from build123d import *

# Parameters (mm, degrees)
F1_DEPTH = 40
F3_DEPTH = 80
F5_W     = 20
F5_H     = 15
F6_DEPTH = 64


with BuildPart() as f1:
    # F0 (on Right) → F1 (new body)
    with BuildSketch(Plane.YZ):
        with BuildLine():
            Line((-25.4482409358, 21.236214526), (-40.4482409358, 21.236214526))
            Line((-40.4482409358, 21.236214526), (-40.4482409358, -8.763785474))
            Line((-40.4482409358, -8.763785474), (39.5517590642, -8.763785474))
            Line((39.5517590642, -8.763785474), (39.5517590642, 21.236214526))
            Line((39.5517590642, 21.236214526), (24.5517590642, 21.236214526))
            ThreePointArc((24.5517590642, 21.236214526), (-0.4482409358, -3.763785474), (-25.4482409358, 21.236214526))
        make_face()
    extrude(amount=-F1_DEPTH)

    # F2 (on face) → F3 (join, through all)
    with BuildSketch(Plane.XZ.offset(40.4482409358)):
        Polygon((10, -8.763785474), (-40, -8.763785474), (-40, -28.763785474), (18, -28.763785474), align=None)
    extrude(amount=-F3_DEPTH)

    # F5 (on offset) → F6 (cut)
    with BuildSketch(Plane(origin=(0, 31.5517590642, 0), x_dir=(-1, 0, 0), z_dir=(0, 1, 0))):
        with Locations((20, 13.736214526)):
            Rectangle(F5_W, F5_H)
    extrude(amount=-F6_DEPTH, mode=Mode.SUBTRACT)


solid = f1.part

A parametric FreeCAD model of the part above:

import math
import FreeCAD as App
import Part
import Sketcher


def add_polygon(sketch, points):
    """Adds a closed chain of lines whose ends are joined by coincident constraints."""
    first, n = sketch.GeometryCount, len(points)
    for a, b in zip(points, points[1:] + points[:1]):
        sketch.addGeometry(Part.LineSegment(App.Vector(*a, 0), App.Vector(*b, 0)), False)
    for i in range(n):
        sketch.addConstraint(Sketcher.Constraint("Coincident", first + i, 2, first + (i + 1) % n, 1))

doc = App.newDocument("Part")
body = doc.addObject("PartDesign::Body", "Body")

# Sketch on YZ plane
sketch1 = doc.addObject("Sketcher::SketchObject", "Sketch")
body.addObject(sketch1)
sketch1.AttachmentSupport = (doc.YZ_Plane, [""])
sketch1.MapMode = "FlatFace"
sketch1.addGeometry(Part.LineSegment(App.Vector(-25.448241, 21.236215, 0), App.Vector(-40.448241, 21.236215, 0)), False)
sketch1.addGeometry(Part.LineSegment(App.Vector(-40.448241, 21.236215, 0), App.Vector(-40.448241, -8.763785, 0)), False)
sketch1.addGeometry(Part.LineSegment(App.Vector(-40.448241, -8.763785, 0), App.Vector(39.551759, -8.763785, 0)), False)
sketch1.addGeometry(Part.LineSegment(App.Vector(39.551759, -8.763785, 0), App.Vector(39.551759, 21.236215, 0)), False)
sketch1.addGeometry(Part.LineSegment(App.Vector(39.551759, 21.236215, 0), App.Vector(24.551759, 21.236215, 0)), False)
sketch1.addGeometry(Part.ArcOfCircle(Part.Circle(App.Vector(-0.448241, 21.236215, 0), App.Vector(0, 0, 1), 25), math.radians(180), math.radians(360)), False)
sketch1.addConstraint(Sketcher.Constraint("Coincident", 0, 2, 1, 1))
sketch1.addConstraint(Sketcher.Constraint("Coincident", 1, 2, 2, 1))
sketch1.addConstraint(Sketcher.Constraint("Coincident", 2, 2, 3, 1))
sketch1.addConstraint(Sketcher.Constraint("Coincident", 3, 2, 4, 1))
sketch1.addConstraint(Sketcher.Constraint("Coincident", 4, 2, 5, 2))
sketch1.addConstraint(Sketcher.Constraint("Coincident", 5, 1, 0, 1))
sketch1.addConstraint(Sketcher.Constraint("Horizontal", 0))
sketch1.addConstraint(Sketcher.Constraint("Vertical", 1))
sketch1.addConstraint(Sketcher.Constraint("Horizontal", 2))
sketch1.addConstraint(Sketcher.Constraint("Vertical", 3))
sketch1.addConstraint(Sketcher.Constraint("Horizontal", 4))
sketch1.addConstraint(Sketcher.Constraint("Horizontal", 5, 3, 0, 2))
sketch1.addConstraint(Sketcher.Constraint("Horizontal", 0, 2, 3, 2))
sketch1.addConstraint(Sketcher.Constraint("Equal", 0, 4))
sketch1.addConstraint(Sketcher.Constraint("Radius", 5, 25.0))
sketch1.addConstraint(Sketcher.Constraint("DistanceX", 0, 2, 0, 1, 15.0))
sketch1.addConstraint(Sketcher.Constraint("DistanceY", 1, 2, 1, 1, 30.0))
sketch1.addConstraint(Sketcher.Constraint("DistanceX", 5, 3, -1, 1, 0.448241))
sketch1.addConstraint(Sketcher.Constraint("DistanceY", -1, 1, 5, 3, 21.236215))
pad1 = doc.addObject("PartDesign::Pad", "Pad")
body.addObject(pad1)
pad1.Profile = sketch1
pad1.Length = 40
pad1.Reversed = True

# Sketch on XZ plane
sketch2 = doc.addObject("Sketcher::SketchObject", "Sketch001")
body.addObject(sketch2)
sketch2.AttachmentSupport = (doc.XZ_Plane, [""])
sketch2.MapMode = "FlatFace"
sketch2.AttachmentOffset = App.Placement(App.Vector(0, 0, 40.448241), App.Rotation())
add_polygon(sketch2, [(10, -8.763785), (-40, -8.763785), (-40, -28.763785), (18, -28.763785)])  # lines 0-3
sketch2.addConstraint(Sketcher.Constraint("Horizontal", 0))
sketch2.addConstraint(Sketcher.Constraint("Vertical", 1))
sketch2.addConstraint(Sketcher.Constraint("Horizontal", 2))
sketch2.addConstraint(Sketcher.Constraint("DistanceX", 0, 2, 0, 1, 50.0))
sketch2.addConstraint(Sketcher.Constraint("DistanceX", 2, 1, 2, 2, 58.0))
sketch2.addConstraint(Sketcher.Constraint("DistanceY", 1, 2, 1, 1, 20.0))
sketch2.addConstraint(Sketcher.Constraint("DistanceX", 0, 2, -1, 1, 40.0))
sketch2.addConstraint(Sketcher.Constraint("DistanceY", 0, 2, -1, 1, 8.763785))
pad2 = doc.addObject("PartDesign::Pad", "Pad001")
body.addObject(pad2)
pad2.Profile = sketch2
pad2.Length = 80
pad2.Reversed = True

# Sketch on XZ plane
sketch3 = doc.addObject("Sketcher::SketchObject", "Sketch002")
body.addObject(sketch3)
sketch3.AttachmentSupport = (doc.XZ_Plane, [""])
sketch3.MapMode = "FlatFace"
sketch3.AttachmentOffset = App.Placement(App.Vector(0, 0, -31.551759), App.Rotation())
add_polygon(sketch3, [(-10, 21.236215), (-10, 6.236215), (-30, 6.236215), (-30, 21.236215)])  # lines 0-3
sketch3.addConstraint(Sketcher.Constraint("Vertical", 0))
sketch3.addConstraint(Sketcher.Constraint("Horizontal", 1))
sketch3.addConstraint(Sketcher.Constraint("Vertical", 2))
sketch3.addConstraint(Sketcher.Constraint("Horizontal", 3))
sketch3.addConstraint(Sketcher.Constraint("DistanceX", 1, 2, 1, 1, 20.0))
sketch3.addConstraint(Sketcher.Constraint("DistanceY", 0, 2, 0, 1, 15.0))
sketch3.addConstraint(Sketcher.Constraint("DistanceX", 0, 2, -1, 1, 10.0))
sketch3.addConstraint(Sketcher.Constraint("DistanceY", -1, 1, 0, 2, 6.236215))
pocket1 = doc.addObject("PartDesign::Pocket", "Pocket")
body.addObject(pocket1)
pocket1.Profile = sketch3
pocket1.Length = 64
pocket1.Reversed = True

doc.recompute()
